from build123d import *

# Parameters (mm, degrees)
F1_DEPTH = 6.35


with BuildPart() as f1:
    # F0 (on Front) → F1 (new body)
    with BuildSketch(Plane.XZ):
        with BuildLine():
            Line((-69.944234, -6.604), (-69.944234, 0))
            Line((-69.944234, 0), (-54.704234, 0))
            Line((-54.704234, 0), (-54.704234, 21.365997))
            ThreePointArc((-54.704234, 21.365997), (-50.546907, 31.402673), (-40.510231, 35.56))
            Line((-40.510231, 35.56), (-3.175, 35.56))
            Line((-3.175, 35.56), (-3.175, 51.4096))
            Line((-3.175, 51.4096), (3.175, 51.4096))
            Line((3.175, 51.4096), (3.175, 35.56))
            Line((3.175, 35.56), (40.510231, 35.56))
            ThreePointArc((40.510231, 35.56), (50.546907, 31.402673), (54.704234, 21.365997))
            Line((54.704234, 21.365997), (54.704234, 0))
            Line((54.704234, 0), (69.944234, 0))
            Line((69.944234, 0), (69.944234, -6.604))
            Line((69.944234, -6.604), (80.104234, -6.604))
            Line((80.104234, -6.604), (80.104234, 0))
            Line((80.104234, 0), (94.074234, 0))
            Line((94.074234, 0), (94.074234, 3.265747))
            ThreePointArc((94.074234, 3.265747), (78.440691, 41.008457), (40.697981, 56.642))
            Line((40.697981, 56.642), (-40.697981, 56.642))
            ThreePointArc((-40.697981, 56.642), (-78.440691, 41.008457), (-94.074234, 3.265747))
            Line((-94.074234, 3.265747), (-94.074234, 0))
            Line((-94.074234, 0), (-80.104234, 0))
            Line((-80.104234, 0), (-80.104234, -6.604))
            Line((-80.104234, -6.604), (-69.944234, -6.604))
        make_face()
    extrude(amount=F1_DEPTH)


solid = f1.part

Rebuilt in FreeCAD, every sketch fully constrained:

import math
import FreeCAD as App
import Part
import Sketcher
from FreeCAD import Vector
Q = App.Units.Quantity

doc = App.newDocument("Part")
body = doc.addObject("PartDesign::Body", "Body")

sketch1 = body.newObject("Sketcher::SketchObject", "Sketch")
sketch1.AttachmentSupport = (doc.getObject("XZ_Plane"), [""])
sketch1.MapMode = "FlatFace"
sketch1.addGeometry(Part.LineSegment(Vector(-69.9, -6.6, 0), Vector(-69.9, 0, 0)), False)
sketch1.addGeometry(Part.LineSegment(Vector(-69.9, 0, 0), Vector(-54.7, 0, 0)), False)
sketch1.addGeometry(Part.LineSegment(Vector(-54.7, 0, 0), Vector(-54.7, 21.4, 0)), False)
sketch1.addGeometry(Part.ArcOfCircle(Part.Circle(Vector(-40.5, 21.4, 0), Vector(0, 0, 1), 14.2), math.radians(90), math.radians(180)), False)
sketch1.addGeometry(Part.LineSegment(Vector(-40.5, 35.6, 0), Vector(-3.2, 35.6, 0)), False)
sketch1.addGeometry(Part.LineSegment(Vector(-3.2, 35.6, 0), Vector(-3.2, 51.4, 0)), False)
sketch1.addGeometry(Part.LineSegment(Vector(-3.2, 51.4, 0), Vector(3.2, 51.4, 0)), False)
sketch1.addGeometry(Part.LineSegment(Vector(3.2, 51.4, 0), Vector(3.2, 35.6, 0)), False)
sketch1.addGeometry(Part.LineSegment(Vector(3.2, 35.6, 0), Vector(40.5, 35.6, 0)), False)
sketch1.addGeometry(Part.ArcOfCircle(Part.Circle(Vector(40.5, 21.4, 0), Vector(0, 0, 1), 14.2), math.radians(0), math.radians(90)), False)
sketch1.addGeometry(Part.LineSegment(Vector(54.7, 21.4, 0), Vector(54.7, 0, 0)), False)
sketch1.addGeometry(Part.LineSegment(Vector(54.7, 0, 0), Vector(69.9, 0, 0)), False)
sketch1.addGeometry(Part.LineSegment(Vector(69.9, 0, 0), Vector(69.9, -6.6, 0)), False)
sketch1.addGeometry(Part.LineSegment(Vector(69.9, -6.6, 0), Vector(80.1, -6.6, 0)), False)
sketch1.addGeometry(Part.LineSegment(Vector(80.1, -6.6, 0), Vector(80.1, 0, 0)), False)
sketch1.addGeometry(Part.LineSegment(Vector(80.1, 0, 0), Vector(94.1, 0, 0)), False)
sketch1.addGeometry(Part.LineSegment(Vector(94.1, 0, 0), Vector(94.1, 3.3, 0)), False)
sketch1.addGeometry(Part.ArcOfCircle(Part.Circle(Vector(40.7, 3.3, 0), Vector(0, 0, 1), 53.4), math.radians(0), math.radians(90)), False)
sketch1.addGeometry(Part.LineSegment(Vector(40.7, 56.6, 0), Vector(-40.7, 56.6, 0)), False)
sketch1.addGeometry(Part.ArcOfCircle(Part.Circle(Vector(-40.7, 3.3, 0), Vector(0, 0, 1), 53.4), math.radians(90), math.radians(180)), False)
sketch1.addGeometry(Part.LineSegment(Vector(-94.1, 3.3, 0), Vector(-94.1, 0, 0)), False)
sketch1.addGeometry(Part.LineSegment(Vector(-94.1, 0, 0), Vector(-80.1, 0, 0)), False)
sketch1.addGeometry(Part.LineSegment(Vector(-80.1, 0, 0), Vector(-80.1, -6.6, 0)), False)
sketch1.addGeometry(Part.LineSegment(Vector(-80.1, -6.6, 0), Vector(-69.9, -6.6, 0)), False)
sketch1.addConstraint(Sketcher.Constraint("Coincident", 0, 2, 1, 1))
sketch1.addConstraint(Sketcher.Constraint("Coincident", 1, 2, 2, 1))
sketch1.addConstraint(Sketcher.Constraint("Tangent", 2, 2, 3, 2))
sketch1.addConstraint(Sketcher.Constraint("Tangent", 3, 1, 4, 1))
sketch1.addConstraint(Sketcher.Constraint("Coincident", 4, 2, 5, 1))
sketch1.addConstraint(Sketcher.Constraint("Coincident", 5, 2, 6, 1))
sketch1.addConstraint(Sketcher.Constraint("Coincident", 6, 2, 7, 1))
sketch1.addConstraint(Sketcher.Constraint("Coincident", 7, 2, 8, 1))
sketch1.addConstraint(Sketcher.Constraint("Tangent", 8, 2, 9, 2))
sketch1.addConstraint(Sketcher.Constraint("Tangent", 9, 1, 10, 1))
sketch1.addConstraint(Sketcher.Constraint("Coincident", 10, 2, 11, 1))
sketch1.addConstraint(Sketcher.Constraint("Coincident", 11, 2, 12, 1))
sketch1.addConstraint(Sketcher.Constraint("Coincident", 12, 2, 13, 1))
sketch1.addConstraint(Sketcher.Constraint("Coincident", 13, 2, 14, 1))
sketch1.addConstraint(Sketcher.Constraint("Coincident", 14, 2, 15, 1))
sketch1.addConstraint(Sketcher.Constraint("Coincident", 15, 2, 16, 1))
sketch1.addConstraint(Sketcher.Constraint("Tangent", 16, 2, 17, 1))
sketch1.addConstraint(Sketcher.Constraint("Tangent", 17, 2, 18, 1))
sketch1.addConstraint(Sketcher.Constraint("Tangent", 18, 2, 19, 1))
sketch1.addConstraint(Sketcher.Constraint("Tangent", 19, 2, 20, 1))
sketch1.addConstraint(Sketcher.Constraint("Coincident", 20, 2, 21, 1))
sketch1.addConstraint(Sketcher.Constraint("Coincident", 21, 2, 22, 1))
sketch1.addConstraint(Sketcher.Constraint("Coincident", 22, 2, 23, 1))
sketch1.addConstraint(Sketcher.Constraint("Coincident", 23, 2, 0, 1))
sketch1.addConstraint(Sketcher.Constraint("Vertical", 0))
sketch1.addConstraint(Sketcher.Constraint("Horizontal", 1))
sketch1.addConstraint(Sketcher.Constraint("Vertical", 2))
sketch1.addConstraint(Sketcher.Constraint("Horizontal", 4))
sketch1.addConstraint(Sketcher.Constraint("Vertical", 5))
sketch1.addConstraint(Sketcher.Constraint("Horizontal", 6))
sketch1.addConstraint(Sketcher.Constraint("Vertical", 7))
sketch1.addConstraint(Sketcher.Constraint("Horizontal", 8))
sketch1.addConstraint(Sketcher.Constraint("Vertical", 10))
sketch1.addConstraint(Sketcher.Constraint("Horizontal", 11))
sketch1.addConstraint(Sketcher.Constraint("Vertical", 12))
sketch1.addConstraint(Sketcher.Constraint("Horizontal", 13))
sketch1.addConstraint(Sketcher.Constraint("Vertical", 14))
sketch1.addConstraint(Sketcher.Constraint("Horizontal", 15))
sketch1.addConstraint(Sketcher.Constraint("Vertical", 16))
sketch1.addConstraint(Sketcher.Constraint("Horizontal", 18))
sketch1.addConstraint(Sketcher.Constraint("Vertical", 20))
sketch1.addConstraint(Sketcher.Constraint("Horizontal", 21))
sketch1.addConstraint(Sketcher.Constraint("Vertical", 22))
sketch1.addConstraint(Sketcher.Constraint("Horizontal", 23))
sketch1.addConstraint(Sketcher.Constraint("Equal", 3, 9))
sketch1.addConstraint(Sketcher.Constraint("Equal", 17, 19))
sketch1.addConstraint(Sketcher.Constraint("Symmetric", 1, 2, 10, 2, -1, 1))
sketch1.addConstraint(Sketcher.Constraint("Symmetric", 15, 2, 20, 2, -1, 1))
sketch1.addConstraint(Sketcher.Constraint("Symmetric", 4, 2, 7, 2, -2))
sketch1.addConstraint(Sketcher.Constraint("Symmetric", 0, 2, 11, 2, -2))
sketch1.addConstraint(Sketcher.Constraint("Symmetric", 14, 2, 21, 2, -2))
sketch1.addConstraint(Sketcher.Constraint("Horizontal", 13, 2, 22, 2))
sketch1.addConstraint(Sketcher.Constraint("DistanceX", 1, 1, 1, 2, Q("0.6 in")))
sketch1.addConstraint(Sketcher.Constraint("DistanceX", 13, 1, 13, 2, Q("0.4 in")))
sketch1.addConstraint(Sketcher.Constraint("DistanceX", 6, 1, 6, 2, Q("0.25 in")))
sketch1.addConstraint(Sketcher.Constraint("DistanceX", 15, 1, 15, 2, Q("0.55 in")))
sketch1.addConstraint(Sketcher.Constraint("DistanceY", 0, 1, 0, 2, Q("0.26 in")))
sketch1.addConstraint(Sketcher.Constraint("DistanceY", -1, 1, 3, 1, Q("1.4 in")))
sketch1.addConstraint(Sketcher.Constraint("DistanceY", 5, 1, 5, 2, Q("0.624 in")))
sketch1.addConstraint(Sketcher.Constraint("DistanceY", -1, 1, 17, 2, Q("2.23 in")))
sketch1.addConstraint(Sketcher.Constraint("Radius", 3, Q("14.194002 mm")))
sketch1.addConstraint(Sketcher.Constraint("Radius", 17, Q("53.376255 mm")))
sketch1.addConstraint(Sketcher.Constraint("DistanceX", 4, 1, 4, 2, Q("37.335231 mm")))
pad1 = body.newObject("PartDesign::Pad", "Pad")
pad1.Profile = sketch1
pad1.Length = Q("0.25 in")

doc.recompute()
